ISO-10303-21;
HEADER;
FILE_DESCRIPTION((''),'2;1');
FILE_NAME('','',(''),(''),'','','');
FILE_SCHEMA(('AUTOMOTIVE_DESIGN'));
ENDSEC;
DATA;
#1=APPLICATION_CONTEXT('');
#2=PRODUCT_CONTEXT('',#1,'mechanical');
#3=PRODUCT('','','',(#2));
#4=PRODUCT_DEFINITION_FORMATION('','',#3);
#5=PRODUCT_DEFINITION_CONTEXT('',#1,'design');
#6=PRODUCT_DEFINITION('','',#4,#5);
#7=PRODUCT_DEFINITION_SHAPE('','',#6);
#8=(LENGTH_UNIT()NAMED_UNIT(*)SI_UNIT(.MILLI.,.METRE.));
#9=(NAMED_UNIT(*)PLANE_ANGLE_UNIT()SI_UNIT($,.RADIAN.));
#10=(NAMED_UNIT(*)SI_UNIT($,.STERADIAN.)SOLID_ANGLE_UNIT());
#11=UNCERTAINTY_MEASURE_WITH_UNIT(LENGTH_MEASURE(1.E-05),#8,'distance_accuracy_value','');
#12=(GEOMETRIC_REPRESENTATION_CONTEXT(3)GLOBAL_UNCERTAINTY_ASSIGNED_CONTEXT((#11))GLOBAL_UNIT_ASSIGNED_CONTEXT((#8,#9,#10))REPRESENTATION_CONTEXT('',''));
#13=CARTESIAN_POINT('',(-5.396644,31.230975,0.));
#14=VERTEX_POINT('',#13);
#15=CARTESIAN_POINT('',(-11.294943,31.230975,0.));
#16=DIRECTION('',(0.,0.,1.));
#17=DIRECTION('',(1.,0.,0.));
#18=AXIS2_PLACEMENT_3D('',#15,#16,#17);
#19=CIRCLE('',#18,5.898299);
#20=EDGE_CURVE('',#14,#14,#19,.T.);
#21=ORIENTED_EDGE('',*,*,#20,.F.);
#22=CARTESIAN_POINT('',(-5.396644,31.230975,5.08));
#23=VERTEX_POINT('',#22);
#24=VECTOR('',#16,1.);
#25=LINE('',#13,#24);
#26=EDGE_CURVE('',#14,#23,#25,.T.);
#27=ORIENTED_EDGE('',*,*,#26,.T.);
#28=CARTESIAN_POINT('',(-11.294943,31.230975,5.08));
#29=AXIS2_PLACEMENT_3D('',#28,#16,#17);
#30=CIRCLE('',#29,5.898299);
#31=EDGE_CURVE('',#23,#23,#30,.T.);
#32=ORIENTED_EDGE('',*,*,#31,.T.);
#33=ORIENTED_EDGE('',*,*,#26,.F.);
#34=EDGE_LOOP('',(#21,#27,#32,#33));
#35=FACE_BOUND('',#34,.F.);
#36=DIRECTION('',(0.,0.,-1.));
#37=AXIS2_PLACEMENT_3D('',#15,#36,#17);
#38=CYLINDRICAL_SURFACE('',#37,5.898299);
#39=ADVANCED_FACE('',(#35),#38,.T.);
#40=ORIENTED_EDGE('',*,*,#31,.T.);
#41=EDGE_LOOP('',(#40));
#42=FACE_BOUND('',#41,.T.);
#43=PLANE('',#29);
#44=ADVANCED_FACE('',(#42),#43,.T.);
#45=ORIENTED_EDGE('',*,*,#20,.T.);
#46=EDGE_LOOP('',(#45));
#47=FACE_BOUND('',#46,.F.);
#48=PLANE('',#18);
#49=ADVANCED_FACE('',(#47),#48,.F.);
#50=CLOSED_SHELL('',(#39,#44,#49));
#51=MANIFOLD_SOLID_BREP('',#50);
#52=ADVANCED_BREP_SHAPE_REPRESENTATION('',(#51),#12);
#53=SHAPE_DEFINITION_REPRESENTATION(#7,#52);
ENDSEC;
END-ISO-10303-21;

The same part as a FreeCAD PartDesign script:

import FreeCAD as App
import Part
import Sketcher
from FreeCAD import Vector
Q = App.Units.Quantity

doc = App.newDocument("Part")
body = doc.addObject("PartDesign::Body", "Body")

sketch1 = doc.addObject("Sketcher::SketchObject", "Sketch")
body.addObject(sketch1)
sketch1.AttachmentSupport = (doc.XY_Plane, [""])
sketch1.MapMode = "FlatFace"
sketch1.addGeometry(Part.Circle(Vector(-11, 31, 0), Vector(0, 0, 1), 6), False)
sketch1.addConstraint(Sketcher.Constraint("Diameter", 0, Q("11.796598 mm")))
sketch1.addConstraint(Sketcher.Constraint("DistanceX", 0, 3, -1, 1, Q("11.294943 mm")))
sketch1.addConstraint(Sketcher.Constraint("DistanceY", -1, 1, 0, 3, Q("31.230975 mm")))
pad1 = doc.addObject("PartDesign::Pad", "Pad")
body.addObject(pad1)
pad1.Profile = sketch1
pad1.Length = Q("0.2 in")

doc.recompute()
